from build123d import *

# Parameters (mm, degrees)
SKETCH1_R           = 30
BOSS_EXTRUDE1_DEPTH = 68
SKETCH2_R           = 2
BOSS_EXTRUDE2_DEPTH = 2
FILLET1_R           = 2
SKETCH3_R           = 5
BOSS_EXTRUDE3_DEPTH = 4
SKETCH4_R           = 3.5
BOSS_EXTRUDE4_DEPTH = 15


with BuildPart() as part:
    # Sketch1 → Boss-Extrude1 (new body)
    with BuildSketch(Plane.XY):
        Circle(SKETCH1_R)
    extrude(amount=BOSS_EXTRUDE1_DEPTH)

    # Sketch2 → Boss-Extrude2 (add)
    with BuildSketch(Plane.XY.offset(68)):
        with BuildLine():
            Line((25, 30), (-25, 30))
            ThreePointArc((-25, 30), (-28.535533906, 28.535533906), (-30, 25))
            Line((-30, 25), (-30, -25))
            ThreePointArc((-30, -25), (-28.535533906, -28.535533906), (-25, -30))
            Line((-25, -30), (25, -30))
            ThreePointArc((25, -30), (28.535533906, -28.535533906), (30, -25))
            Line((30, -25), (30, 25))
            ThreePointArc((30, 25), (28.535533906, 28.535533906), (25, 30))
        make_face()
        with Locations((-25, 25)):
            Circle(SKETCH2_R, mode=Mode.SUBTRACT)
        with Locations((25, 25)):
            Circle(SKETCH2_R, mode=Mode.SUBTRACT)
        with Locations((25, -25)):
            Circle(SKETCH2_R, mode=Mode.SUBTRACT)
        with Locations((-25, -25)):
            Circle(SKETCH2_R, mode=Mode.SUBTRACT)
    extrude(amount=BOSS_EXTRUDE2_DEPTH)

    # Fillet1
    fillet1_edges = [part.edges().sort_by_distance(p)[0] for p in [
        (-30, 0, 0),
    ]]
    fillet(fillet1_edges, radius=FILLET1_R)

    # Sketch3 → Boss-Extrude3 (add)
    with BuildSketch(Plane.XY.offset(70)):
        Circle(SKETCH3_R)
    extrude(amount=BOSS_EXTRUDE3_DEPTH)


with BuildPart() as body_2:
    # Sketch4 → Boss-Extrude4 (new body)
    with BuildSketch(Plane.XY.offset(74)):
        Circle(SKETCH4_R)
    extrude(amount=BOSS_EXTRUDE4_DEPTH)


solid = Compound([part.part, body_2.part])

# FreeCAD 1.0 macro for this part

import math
import FreeCAD as App
import Part
import Sketcher

V = App.Vector


def edges_at(feature, points):
    """Names of the edges that pass closest to the given points."""
    edges = feature.Shape.Edges
    near = lambda p: min(range(len(edges)), key=lambda i: edges[i].distToShape(Part.Vertex(*p))[0])
    return sorted({f"Edge{near(p) + 1}" for p in points})

doc = App.newDocument("Part")
body = doc.addObject("PartDesign::Body", "Body")

sketch1 = body.newObject("Sketcher::SketchObject", "Sketch")
sketch1.AttachmentSupport = (doc.getObject("XY_Plane"), [""])
sketch1.MapMode = "FlatFace"
sketch1.addGeometry(Part.Circle(V(0, 0, 0), V(0, 0, 1), 30), False)
sketch1.addConstraint([
    Sketcher.Constraint("Coincident", 0, 3, -1, 1),
    Sketcher.Constraint("Diameter", 0, 60.0),
])
pad1 = body.newObject("PartDesign::Pad", "Pad")
pad1.Profile = sketch1
pad1.Length = 68

sketch2 = body.newObject("Sketcher::SketchObject", "Sketch001")
sketch2.AttachmentSupport = (doc.getObject("XY_Plane"), [""])
sketch2.MapMode = "FlatFace"
sketch2.AttachmentOffset = App.Placement(V(0, 0, 68), App.Rotation())
sketch2.addGeometry([
    Part.LineSegment(V(25, 30, 0), V(-25, 30, 0)),
    Part.ArcOfCircle(Part.Circle(V(-25, 25, 0), V(0, 0, 1), 5), math.radians(90), math.radians(180)),
    Part.LineSegment(V(-30, 25, 0), V(-30, -25, 0)),
    Part.ArcOfCircle(Part.Circle(V(-25, -25, 0), V(0, 0, 1), 5), math.radians(180), math.radians(270)),
    Part.LineSegment(V(-25, -30, 0), V(25, -30, 0)),
    Part.ArcOfCircle(Part.Circle(V(25, -25, 0), V(0, 0, 1), 5), math.radians(-90), math.radians(0)),
    Part.LineSegment(V(30, -25, 0), V(30, 25, 0)),
    Part.ArcOfCircle(Part.Circle(V(25, 25, 0), V(0, 0, 1), 5), math.radians(0), math.radians(90)),
    Part.Circle(V(-25, -25, 0), V(0, 0, 1), 2),
    Part.Circle(V(25, -25, 0), V(0, 0, 1), 2),
    Part.Circle(V(-25, 25, 0), V(0, 0, 1), 2),
    Part.Circle(V(25, 25, 0), V(0, 0, 1), 2),
], False)
sketch2.addConstraint([
    Sketcher.Constraint("Tangent", 0, 2, 1, 1),
    Sketcher.Constraint("Tangent", 1, 2, 2, 1),
    Sketcher.Constraint("Tangent", 2, 2, 3, 1),
    Sketcher.Constraint("Tangent", 3, 2, 4, 1),
    Sketcher.Constraint("Tangent", 4, 2, 5, 1),
    Sketcher.Constraint("Tangent", 5, 2, 6, 1),
    Sketcher.Constraint("Tangent", 6, 2, 7, 1),
    Sketcher.Constraint("Tangent", 7, 2, 0, 1),
    Sketcher.Constraint("Horizontal", 0),
    Sketcher.Constraint("Vertical", 2),
    Sketcher.Constraint("Horizontal", 4),
    Sketcher.Constraint("Vertical", 6),
    Sketcher.Constraint("Coincident", 8, 3, 3, 3),
    Sketcher.Constraint("Coincident", 9, 3, 5, 3),
    Sketcher.Constraint("Coincident", 10, 3, 1, 3),
    Sketcher.Constraint("Coincident", 11, 3, 7, 3),
    Sketcher.Constraint("Equal", 1, 3),
    Sketcher.Constraint("Equal", 3, 5),
    Sketcher.Constraint("Equal", 5, 7),
    Sketcher.Constraint("Equal", 8, 9),
    Sketcher.Constraint("Equal", 9, 10),
    Sketcher.Constraint("Equal", 10, 11),
    Sketcher.Constraint("Symmetric", 1, 3, 5, 3, -1, 1),
    Sketcher.Constraint("Equal", 4, 2),
    Sketcher.Constraint("Diameter", 8, 4.0),
    Sketcher.Constraint("Radius", 1, 5.0),
    Sketcher.Constraint("DistanceX", 0, 2, 0, 1, 50.0),
])
pad2 = body.newObject("PartDesign::Pad", "Pad001")
pad2.Profile = sketch2
pad2.Length = 2
doc.recompute()

fillet = body.newObject("PartDesign::Fillet", "Fillet")
fillet.Base = (pad2, edges_at(pad2, [(-30, 0, 0)]))
fillet.Radius = 2

sketch3 = body.newObject("Sketcher::SketchObject", "Sketch002")
sketch3.AttachmentSupport = (doc.getObject("XY_Plane"), [""])
sketch3.MapMode = "FlatFace"
sketch3.AttachmentOffset = App.Placement(V(0, 0, 70), App.Rotation())
sketch3.addGeometry(Part.Circle(V(0, 0, 0), V(0, 0, 1), 5), False)
sketch3.addConstraint([
    Sketcher.Constraint("Coincident", 0, 3, -1, 1),
    Sketcher.Constraint("Diameter", 0, 10.0),
])
pad3 = body.newObject("PartDesign::Pad", "Pad002")
pad3.Profile = sketch3
pad3.Length = 4
body2 = doc.addObject("PartDesign::Body", "Body001")

sketch4 = body2.newObject("Sketcher::SketchObject", "Sketch003")
sketch4.AttachmentSupport = (doc.getObject("XY_Plane001"), [""])
sketch4.MapMode = "FlatFace"
sketch4.AttachmentOffset = App.Placement(V(0, 0, 74), App.Rotation())
sketch4.addGeometry(Part.Circle(V(0, 0, 0), V(0, 0, 1), 3.5), False)
sketch4.addConstraint([
    Sketcher.Constraint("Coincident", 0, 3, -1, 1),
    Sketcher.Constraint("Diameter", 0, 7.0),
])
pad4 = body2.newObject("PartDesign::Pad", "Pad003")
pad4.Profile = sketch4
pad4.Length = 15

doc.recompute()
